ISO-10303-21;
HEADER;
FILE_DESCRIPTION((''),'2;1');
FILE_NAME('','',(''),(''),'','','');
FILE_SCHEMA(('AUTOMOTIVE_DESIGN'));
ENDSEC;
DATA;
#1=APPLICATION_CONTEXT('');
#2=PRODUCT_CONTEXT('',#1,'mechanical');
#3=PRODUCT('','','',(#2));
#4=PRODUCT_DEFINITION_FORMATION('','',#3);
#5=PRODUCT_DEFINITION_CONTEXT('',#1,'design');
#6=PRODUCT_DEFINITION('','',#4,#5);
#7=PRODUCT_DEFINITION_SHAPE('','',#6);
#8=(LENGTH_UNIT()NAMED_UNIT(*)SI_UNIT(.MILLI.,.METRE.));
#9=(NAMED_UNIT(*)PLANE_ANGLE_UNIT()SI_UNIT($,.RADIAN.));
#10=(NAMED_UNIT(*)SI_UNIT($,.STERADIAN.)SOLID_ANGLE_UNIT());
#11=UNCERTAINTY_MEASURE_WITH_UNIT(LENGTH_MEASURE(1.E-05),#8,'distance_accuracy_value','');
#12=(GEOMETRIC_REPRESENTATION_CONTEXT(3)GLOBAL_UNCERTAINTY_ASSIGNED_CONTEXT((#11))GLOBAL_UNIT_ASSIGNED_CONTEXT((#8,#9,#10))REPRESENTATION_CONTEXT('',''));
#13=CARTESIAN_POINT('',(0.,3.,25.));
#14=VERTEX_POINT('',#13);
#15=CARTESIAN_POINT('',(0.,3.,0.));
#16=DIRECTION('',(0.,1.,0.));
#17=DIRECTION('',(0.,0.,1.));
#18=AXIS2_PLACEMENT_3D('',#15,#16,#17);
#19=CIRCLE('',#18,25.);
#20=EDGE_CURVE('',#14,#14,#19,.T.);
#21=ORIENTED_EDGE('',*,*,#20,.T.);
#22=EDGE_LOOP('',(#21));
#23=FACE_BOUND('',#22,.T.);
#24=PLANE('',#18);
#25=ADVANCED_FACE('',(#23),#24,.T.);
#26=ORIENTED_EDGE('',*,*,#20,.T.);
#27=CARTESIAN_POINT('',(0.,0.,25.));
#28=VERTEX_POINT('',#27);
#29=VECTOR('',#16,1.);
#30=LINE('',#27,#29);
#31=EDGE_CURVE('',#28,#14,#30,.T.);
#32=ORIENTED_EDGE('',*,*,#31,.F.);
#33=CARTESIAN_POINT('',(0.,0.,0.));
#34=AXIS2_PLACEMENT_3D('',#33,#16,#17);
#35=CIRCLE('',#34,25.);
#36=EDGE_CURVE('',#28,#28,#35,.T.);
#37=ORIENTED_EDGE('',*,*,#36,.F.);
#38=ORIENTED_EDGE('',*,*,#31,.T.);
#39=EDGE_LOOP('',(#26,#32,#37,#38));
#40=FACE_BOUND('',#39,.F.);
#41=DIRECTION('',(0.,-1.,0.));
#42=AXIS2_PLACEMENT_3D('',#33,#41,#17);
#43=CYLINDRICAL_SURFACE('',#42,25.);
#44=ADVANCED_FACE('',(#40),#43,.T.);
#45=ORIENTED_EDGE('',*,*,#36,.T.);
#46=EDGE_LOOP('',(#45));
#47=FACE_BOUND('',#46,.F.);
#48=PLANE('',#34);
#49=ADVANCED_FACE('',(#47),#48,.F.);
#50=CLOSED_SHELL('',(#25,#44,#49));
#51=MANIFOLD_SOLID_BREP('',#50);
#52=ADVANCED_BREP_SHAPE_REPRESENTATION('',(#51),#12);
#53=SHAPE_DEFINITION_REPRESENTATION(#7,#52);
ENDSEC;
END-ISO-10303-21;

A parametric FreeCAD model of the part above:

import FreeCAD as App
import Part
import Sketcher

doc = App.newDocument("Part")
params = doc.addObject("Spreadsheet::Sheet", "Params")
for row, (alias, value) in enumerate([
    ("sketch1_diameter", "50 mm"),
    ("pad1_length", "3 mm"),
], start=1):
    params.set(f"A{row}", alias)
    params.set(f"B{row}", "=" + value)
    params.setAlias(f"B{row}", alias)

body = doc.addObject("PartDesign::Body", "Body")

# Sketch on XZ plane
sketch1 = body.newObject("Sketcher::SketchObject", "Sketch")
sketch1.AttachmentSupport = (doc.getObject("XZ_Plane"), [""])
sketch1.MapMode = "FlatFace"
sketch1.addGeometry(Part.Circle(App.Vector(0, 0, 0), App.Vector(0, 0, 1), 25), False)
sketch1.addConstraint([
    Sketcher.Constraint("Coincident", 0, 3, -1, 1),
    Sketcher.Constraint("Diameter", 0, 50.0),
])
sketch1.setExpression("Constraints[1]", "Params.sketch1_diameter")
pad1 = body.newObject("PartDesign::Pad", "Pad")
pad1.Profile = sketch1
pad1.setExpression("Length", "Params.pad1_length")
pad1.Reversed = True

doc.recompute()
